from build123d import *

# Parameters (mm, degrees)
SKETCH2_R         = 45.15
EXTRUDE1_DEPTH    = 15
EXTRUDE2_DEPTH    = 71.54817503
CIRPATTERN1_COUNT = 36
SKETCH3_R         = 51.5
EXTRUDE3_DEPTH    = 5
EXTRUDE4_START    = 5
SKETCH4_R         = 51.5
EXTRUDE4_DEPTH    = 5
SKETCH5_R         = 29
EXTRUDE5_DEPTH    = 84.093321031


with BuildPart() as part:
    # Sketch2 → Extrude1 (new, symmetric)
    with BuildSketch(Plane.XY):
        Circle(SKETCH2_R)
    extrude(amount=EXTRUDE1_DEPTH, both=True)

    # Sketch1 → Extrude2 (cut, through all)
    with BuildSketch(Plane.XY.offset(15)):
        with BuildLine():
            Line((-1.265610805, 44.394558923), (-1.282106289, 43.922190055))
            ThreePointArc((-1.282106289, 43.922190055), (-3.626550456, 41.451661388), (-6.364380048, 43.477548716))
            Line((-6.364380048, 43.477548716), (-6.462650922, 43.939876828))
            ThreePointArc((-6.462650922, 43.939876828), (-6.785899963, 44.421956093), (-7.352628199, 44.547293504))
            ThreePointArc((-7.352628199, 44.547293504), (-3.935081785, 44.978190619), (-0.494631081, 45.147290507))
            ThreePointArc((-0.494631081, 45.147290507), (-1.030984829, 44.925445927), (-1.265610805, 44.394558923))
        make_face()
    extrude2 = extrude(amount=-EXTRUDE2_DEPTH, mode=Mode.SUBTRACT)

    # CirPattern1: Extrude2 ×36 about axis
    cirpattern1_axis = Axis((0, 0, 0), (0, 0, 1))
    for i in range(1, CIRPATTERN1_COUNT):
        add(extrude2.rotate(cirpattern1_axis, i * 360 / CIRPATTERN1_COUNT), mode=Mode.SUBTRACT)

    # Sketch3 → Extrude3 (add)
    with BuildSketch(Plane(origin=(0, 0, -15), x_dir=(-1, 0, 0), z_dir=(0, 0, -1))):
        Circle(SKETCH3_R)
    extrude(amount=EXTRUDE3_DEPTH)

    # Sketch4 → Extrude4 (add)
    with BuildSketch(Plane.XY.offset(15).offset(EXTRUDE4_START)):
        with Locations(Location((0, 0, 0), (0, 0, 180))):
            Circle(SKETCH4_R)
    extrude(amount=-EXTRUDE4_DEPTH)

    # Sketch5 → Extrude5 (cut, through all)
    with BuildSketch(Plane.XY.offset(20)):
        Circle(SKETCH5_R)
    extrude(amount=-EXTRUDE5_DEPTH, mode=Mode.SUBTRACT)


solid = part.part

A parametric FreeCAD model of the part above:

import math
import FreeCAD as App
import Part
import Sketcher

V = App.Vector
Q = App.Units.Quantity

doc = App.newDocument("Part")
body = doc.addObject("PartDesign::Body", "Body")

sketch1 = body.newObject("Sketcher::SketchObject", "Sketch")
sketch1.AttachmentSupport = (doc.getObject("XY_Plane"), [""])
sketch1.MapMode = "FlatFace"
sketch1.addGeometry(Part.Circle(V(0, 0, 0), V(0, 0, 1), 45), False)
sketch1.addConstraint([
    Sketcher.Constraint("Coincident", 0, 3, -1, 1),
    Sketcher.Constraint("Diameter", 0, 90.3),
])
pad1 = body.newObject("PartDesign::Pad", "Pad")
pad1.Profile = sketch1
pad1.Length = 30
pad1.Midplane = True

sketch2 = body.newObject("Sketcher::SketchObject", "Sketch001")
sketch2.AttachmentSupport = (doc.getObject("XY_Plane"), [""])
sketch2.MapMode = "FlatFace"
sketch2.AttachmentOffset = App.Placement(V(0, 0, 15), App.Rotation())
sketch2.addGeometry([
    Part.LineSegment(V(-1.28, 43.92, 0), V(-1.27, 44.39, 0)),
    Part.ArcOfCircle(Part.Circle(V(-0.49, 44.37, 0), V(0, 0, 1), 0.78), math.radians(91), math.radians(178)),
    Part.ArcOfCircle(Part.Circle(V(0, 0, 0), V(0, 0, 1), 45.15), math.radians(90.63), math.radians(99.37)),
    Part.ArcOfCircle(Part.Circle(V(-7.23, 43.78, 0), V(0, 0, 1), 0.78), math.radians(12), math.radians(99)),
    Part.LineSegment(V(-6.46, 43.94, 0), V(-6.36, 43.48, 0)),
    Part.ArcOfCircle(Part.Circle(V(-3.85, 44.01, 0), V(0, 0, 1), 2.57), math.radians(-168), math.radians(-2)),
], False)
sketch2.addConstraint([
    Sketcher.Constraint("Tangent", 0, 2, 1, 2),
    Sketcher.Constraint("Tangent", 1, 1, 2, 1),
    Sketcher.Constraint("Tangent", 2, 2, 3, 2),
    Sketcher.Constraint("Tangent", 3, 1, 4, 1),
    Sketcher.Constraint("Tangent", 4, 2, 5, 1),
    Sketcher.Constraint("Tangent", 5, 2, 0, 1),
    Sketcher.Constraint("Coincident", 2, 3, -1, 1),
    Sketcher.Constraint("Equal", 1, 3),
    Sketcher.Constraint("Equal", 0, 4),
    Sketcher.Constraint("Angle", 0, Q("88 deg")),
    Sketcher.Constraint("Angle", 4, Q("-78 deg")),
    Sketcher.Constraint("Radius", 1, 0.78),
    Sketcher.Constraint("Radius", 2, 45.15),
    Sketcher.Constraint("Radius", 5, 2.57),
    Sketcher.Constraint("DistanceY", 5, 2, 1, 1, 1.2251),
])
pocket1 = body.newObject("PartDesign::Pocket", "Pocket")
pocket1.Profile = sketch2
pocket1.Type = "ThroughAll"
doc.recompute()

polarpattern = body.newObject("PartDesign::PolarPattern", "PolarPattern")
polarpattern.Originals = [pocket1]
polarpattern.Axis = (doc.getObject("Z_Axis"), [""])
polarpattern.Angle = 360
polarpattern.Occurrences = 36
body.Tip = polarpattern

sketch3 = body.newObject("Sketcher::SketchObject", "Sketch002")
sketch3.AttachmentSupport = (doc.getObject("XY_Plane"), [""])
sketch3.MapMode = "FlatFace"
sketch3.AttachmentOffset = App.Placement(V(0, 0, -15), App.Rotation())
sketch3.addGeometry(Part.Circle(V(0, 0, 0), V(0, 0, 1), 52), False)
sketch3.addConstraint([
    Sketcher.Constraint("Coincident", 0, 3, -1, 1),
    Sketcher.Constraint("Diameter", 0, 103.0),
])
pad2 = body.newObject("PartDesign::Pad", "Pad001")
pad2.Profile = sketch3
pad2.Length = 5
pad2.Reversed = True

sketch4 = body.newObject("Sketcher::SketchObject", "Sketch003")
sketch4.AttachmentSupport = (doc.getObject("XY_Plane"), [""])
sketch4.MapMode = "FlatFace"
sketch4.AttachmentOffset = App.Placement(V(0, 0, 20), App.Rotation())
sketch4.addGeometry(Part.Circle(V(0, 0, 0), V(0, 0, 1), 52), False)
sketch4.addConstraint([
    Sketcher.Constraint("Coincident", 0, 3, -1, 1),
    Sketcher.Constraint("Diameter", 0, 103.0),
])
pad3 = body.newObject("PartDesign::Pad", "Pad002")
pad3.Profile = sketch4
pad3.Length = 5
pad3.Reversed = True

sketch5 = body.newObject("Sketcher::SketchObject", "Sketch004")
sketch5.AttachmentSupport = (doc.getObject("XY_Plane"), [""])
sketch5.MapMode = "FlatFace"
sketch5.AttachmentOffset = App.Placement(V(0, 0, 20), App.Rotation())
sketch5.addGeometry(Part.Circle(V(0, 0, 0), V(0, 0, 1), 29), False)
sketch5.addConstraint([
    Sketcher.Constraint("Coincident", 0, 3, -1, 1),
    Sketcher.Constraint("Diameter", 0, 58.0),
])
pocket2 = body.newObject("PartDesign::Pocket", "Pocket001")
pocket2.Profile = sketch5
pocket2.Type = "ThroughAll"

doc.recompute()
